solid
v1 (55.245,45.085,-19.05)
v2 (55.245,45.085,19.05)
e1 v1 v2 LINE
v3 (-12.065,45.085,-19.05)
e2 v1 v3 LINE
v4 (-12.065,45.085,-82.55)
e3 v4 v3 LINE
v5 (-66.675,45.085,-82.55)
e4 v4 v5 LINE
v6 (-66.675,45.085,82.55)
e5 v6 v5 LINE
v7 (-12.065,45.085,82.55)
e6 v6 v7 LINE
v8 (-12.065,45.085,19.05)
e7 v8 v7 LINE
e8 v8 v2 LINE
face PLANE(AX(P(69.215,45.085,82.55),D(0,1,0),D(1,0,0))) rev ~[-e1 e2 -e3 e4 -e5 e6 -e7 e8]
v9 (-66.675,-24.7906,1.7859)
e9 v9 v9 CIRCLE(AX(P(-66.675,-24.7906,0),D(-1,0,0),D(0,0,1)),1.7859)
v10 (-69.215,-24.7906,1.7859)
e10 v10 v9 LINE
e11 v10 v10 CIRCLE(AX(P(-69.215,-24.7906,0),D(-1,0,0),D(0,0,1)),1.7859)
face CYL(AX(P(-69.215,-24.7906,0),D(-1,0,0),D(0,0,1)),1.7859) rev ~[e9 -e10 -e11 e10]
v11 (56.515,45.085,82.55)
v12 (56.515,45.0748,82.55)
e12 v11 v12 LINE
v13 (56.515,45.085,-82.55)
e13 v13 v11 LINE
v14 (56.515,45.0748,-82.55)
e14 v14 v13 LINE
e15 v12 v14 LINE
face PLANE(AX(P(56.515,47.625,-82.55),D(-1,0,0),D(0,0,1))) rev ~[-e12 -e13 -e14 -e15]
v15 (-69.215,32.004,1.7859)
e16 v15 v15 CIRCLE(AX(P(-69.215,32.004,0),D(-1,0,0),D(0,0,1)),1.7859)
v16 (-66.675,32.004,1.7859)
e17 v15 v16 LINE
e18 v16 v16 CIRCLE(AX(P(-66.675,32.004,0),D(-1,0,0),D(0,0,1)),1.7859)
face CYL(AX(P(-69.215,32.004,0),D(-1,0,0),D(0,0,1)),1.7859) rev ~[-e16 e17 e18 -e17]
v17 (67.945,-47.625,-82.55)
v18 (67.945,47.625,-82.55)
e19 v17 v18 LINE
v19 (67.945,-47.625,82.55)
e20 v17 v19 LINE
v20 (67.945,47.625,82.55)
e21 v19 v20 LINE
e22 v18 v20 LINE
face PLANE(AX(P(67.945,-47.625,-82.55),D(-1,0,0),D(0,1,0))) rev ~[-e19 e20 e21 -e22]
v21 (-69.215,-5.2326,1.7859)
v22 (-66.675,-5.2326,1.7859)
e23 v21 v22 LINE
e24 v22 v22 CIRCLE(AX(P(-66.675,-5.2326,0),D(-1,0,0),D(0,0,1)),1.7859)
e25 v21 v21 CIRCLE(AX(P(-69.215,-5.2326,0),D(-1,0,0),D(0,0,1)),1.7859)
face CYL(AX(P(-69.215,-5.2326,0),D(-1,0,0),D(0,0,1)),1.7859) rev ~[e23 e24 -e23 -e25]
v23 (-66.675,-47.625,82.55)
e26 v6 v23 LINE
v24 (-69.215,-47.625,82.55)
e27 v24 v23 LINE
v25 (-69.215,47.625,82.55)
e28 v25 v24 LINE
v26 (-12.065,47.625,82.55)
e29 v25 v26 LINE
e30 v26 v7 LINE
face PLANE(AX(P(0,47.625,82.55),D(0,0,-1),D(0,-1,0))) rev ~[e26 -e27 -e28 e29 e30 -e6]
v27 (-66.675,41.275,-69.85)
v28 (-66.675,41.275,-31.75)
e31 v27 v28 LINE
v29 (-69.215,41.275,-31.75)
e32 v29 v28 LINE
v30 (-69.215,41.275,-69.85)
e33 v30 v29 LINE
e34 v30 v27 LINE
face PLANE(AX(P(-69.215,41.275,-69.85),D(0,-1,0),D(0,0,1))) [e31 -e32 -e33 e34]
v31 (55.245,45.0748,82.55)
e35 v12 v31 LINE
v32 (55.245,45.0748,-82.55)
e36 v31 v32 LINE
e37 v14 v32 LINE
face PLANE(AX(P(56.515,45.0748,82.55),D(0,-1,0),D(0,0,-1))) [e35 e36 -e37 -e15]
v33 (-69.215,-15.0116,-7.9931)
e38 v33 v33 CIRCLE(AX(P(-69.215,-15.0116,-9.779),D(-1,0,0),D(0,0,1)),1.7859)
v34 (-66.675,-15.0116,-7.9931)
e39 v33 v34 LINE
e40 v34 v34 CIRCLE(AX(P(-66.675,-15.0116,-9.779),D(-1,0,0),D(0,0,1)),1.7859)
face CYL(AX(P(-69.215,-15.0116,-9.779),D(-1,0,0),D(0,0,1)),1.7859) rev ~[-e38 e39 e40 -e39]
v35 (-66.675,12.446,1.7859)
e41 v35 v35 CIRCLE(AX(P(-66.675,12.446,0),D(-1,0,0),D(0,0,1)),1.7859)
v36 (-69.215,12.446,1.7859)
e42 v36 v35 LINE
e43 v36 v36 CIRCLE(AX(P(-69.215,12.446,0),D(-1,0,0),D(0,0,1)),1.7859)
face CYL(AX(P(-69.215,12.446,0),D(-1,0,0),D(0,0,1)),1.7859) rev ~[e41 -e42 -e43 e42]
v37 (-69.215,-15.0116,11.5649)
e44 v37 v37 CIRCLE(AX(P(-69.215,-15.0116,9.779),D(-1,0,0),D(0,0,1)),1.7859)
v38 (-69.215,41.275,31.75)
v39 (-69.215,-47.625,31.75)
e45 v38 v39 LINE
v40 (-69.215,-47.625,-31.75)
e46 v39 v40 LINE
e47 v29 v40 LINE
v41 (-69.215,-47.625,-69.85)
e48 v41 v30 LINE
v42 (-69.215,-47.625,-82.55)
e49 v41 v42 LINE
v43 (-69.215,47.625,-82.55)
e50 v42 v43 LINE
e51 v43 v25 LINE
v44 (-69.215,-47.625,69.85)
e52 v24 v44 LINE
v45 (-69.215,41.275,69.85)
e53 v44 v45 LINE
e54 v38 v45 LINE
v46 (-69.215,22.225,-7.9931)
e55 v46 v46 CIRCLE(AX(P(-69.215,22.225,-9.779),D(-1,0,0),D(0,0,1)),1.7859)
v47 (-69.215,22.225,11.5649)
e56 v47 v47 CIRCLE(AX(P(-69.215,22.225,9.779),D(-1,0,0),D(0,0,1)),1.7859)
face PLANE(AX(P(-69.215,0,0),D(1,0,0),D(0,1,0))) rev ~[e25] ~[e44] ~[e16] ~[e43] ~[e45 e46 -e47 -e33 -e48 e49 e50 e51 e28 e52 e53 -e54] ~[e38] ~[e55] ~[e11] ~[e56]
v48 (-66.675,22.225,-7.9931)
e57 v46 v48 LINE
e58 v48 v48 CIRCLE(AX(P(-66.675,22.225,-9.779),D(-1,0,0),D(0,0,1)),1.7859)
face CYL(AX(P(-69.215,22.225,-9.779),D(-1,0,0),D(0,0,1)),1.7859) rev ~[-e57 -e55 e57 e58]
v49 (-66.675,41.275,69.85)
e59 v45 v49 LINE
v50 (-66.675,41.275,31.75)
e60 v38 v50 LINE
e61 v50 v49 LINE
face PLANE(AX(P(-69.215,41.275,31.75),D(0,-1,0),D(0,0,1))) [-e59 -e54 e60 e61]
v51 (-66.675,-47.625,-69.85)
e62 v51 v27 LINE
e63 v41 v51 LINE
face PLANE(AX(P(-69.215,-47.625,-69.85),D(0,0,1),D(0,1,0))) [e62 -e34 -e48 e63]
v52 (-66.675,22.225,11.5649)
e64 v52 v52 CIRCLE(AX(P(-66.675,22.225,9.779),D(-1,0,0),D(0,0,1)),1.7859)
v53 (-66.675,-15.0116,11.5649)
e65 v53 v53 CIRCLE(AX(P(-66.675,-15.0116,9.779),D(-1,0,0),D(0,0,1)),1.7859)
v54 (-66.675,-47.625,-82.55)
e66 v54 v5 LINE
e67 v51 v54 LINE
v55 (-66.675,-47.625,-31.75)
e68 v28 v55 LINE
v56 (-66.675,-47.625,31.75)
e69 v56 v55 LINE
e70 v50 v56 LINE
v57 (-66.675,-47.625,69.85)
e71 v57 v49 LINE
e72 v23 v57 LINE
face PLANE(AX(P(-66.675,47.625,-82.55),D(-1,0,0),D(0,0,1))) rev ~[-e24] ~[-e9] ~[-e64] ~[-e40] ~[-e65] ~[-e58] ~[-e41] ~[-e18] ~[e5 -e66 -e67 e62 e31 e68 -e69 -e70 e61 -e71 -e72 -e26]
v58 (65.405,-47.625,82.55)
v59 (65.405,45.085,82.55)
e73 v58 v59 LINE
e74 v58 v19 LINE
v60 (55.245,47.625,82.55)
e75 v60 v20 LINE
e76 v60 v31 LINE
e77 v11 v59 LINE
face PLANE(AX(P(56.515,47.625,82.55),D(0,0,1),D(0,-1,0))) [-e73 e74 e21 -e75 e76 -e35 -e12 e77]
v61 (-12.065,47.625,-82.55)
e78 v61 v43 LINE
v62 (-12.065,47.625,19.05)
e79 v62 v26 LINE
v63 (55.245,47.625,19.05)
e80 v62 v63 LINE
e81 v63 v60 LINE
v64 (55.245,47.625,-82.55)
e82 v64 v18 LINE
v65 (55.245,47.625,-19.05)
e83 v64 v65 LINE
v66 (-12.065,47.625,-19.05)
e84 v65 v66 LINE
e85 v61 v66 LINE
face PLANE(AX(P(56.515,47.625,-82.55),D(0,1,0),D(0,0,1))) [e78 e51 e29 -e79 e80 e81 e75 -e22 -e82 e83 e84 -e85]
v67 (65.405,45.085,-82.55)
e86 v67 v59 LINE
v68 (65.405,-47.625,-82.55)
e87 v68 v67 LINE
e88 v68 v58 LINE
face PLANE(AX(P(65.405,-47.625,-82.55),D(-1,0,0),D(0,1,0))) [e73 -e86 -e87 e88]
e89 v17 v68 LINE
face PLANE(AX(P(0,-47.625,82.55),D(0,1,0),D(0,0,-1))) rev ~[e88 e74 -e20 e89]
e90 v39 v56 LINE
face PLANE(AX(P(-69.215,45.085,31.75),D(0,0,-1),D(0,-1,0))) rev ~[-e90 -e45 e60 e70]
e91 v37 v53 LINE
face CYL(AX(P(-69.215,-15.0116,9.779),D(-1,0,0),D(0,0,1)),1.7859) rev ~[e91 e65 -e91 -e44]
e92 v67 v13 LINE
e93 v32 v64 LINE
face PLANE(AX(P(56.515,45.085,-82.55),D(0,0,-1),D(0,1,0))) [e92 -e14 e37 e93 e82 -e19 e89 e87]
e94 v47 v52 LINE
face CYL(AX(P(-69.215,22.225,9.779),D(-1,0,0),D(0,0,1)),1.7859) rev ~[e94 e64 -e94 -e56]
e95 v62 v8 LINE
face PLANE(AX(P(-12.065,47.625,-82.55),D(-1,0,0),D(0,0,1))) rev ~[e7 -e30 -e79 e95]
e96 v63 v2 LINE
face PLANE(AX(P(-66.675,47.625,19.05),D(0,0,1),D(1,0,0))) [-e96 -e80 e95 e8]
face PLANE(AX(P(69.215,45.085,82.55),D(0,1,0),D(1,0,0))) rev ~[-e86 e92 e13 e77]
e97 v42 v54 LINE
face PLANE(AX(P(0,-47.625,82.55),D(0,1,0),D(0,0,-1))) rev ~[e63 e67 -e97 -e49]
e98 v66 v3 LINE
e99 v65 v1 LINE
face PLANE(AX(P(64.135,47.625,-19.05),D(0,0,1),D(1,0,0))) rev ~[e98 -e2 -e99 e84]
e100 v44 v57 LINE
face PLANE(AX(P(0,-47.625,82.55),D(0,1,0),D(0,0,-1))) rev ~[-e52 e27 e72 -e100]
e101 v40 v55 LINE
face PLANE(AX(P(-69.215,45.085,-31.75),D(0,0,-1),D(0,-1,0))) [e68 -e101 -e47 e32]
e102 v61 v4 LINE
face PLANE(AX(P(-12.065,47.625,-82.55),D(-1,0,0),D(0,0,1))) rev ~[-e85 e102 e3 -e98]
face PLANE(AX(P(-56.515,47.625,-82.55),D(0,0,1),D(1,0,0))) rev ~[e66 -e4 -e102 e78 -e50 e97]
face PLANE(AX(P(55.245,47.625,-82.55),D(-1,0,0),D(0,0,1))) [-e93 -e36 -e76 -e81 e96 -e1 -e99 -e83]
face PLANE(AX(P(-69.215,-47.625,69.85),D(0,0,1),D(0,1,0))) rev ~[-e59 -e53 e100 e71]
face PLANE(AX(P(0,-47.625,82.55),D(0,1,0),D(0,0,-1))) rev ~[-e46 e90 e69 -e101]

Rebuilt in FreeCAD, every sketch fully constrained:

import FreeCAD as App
import Part
import Sketcher

V = App.Vector
Q = App.Units.Quantity

doc = App.newDocument("Part")
body = doc.addObject("PartDesign::Body", "Body")

# Sketch on YZ plane
sketch1 = body.newObject("Sketcher::SketchObject", "Sketch")
sketch1.AttachmentSupport = (doc.getObject("YZ_Plane"), [""])
sketch1.MapMode = "FlatFace"
sketch1.addGeometry(Part.LineSegment(V(47.625, 82.55, 0), V(-47.625, 82.55, 0)), False)
sketch1.addGeometry(Part.LineSegment(V(-47.625, 82.55, 0), V(-47.625, -82.55, 0)), False)
sketch1.addGeometry(Part.LineSegment(V(-47.625, -82.55, 0), V(47.625, -82.55, 0)), False)
sketch1.addGeometry(Part.LineSegment(V(47.625, -82.55, 0), V(47.625, 82.55, 0)), False)
sketch1.addConstraint(Sketcher.Constraint("Coincident", 0, 2, 1, 1))
sketch1.addConstraint(Sketcher.Constraint("Coincident", 1, 2, 2, 1))
sketch1.addConstraint(Sketcher.Constraint("Coincident", 2, 2, 3, 1))
sketch1.addConstraint(Sketcher.Constraint("Coincident", 3, 2, 0, 1))
sketch1.addConstraint(Sketcher.Constraint("Horizontal", 0))
sketch1.addConstraint(Sketcher.Constraint("Vertical", 1))
sketch1.addConstraint(Sketcher.Constraint("Horizontal", 2))
sketch1.addConstraint(Sketcher.Constraint("Vertical", 3))
sketch1.addConstraint(Sketcher.Constraint("Symmetric", 0, 2, 2, 2, -1, 1))
sketch1.addConstraint(Sketcher.Constraint("DistanceY", 1, 2, 1, 1, Q("6.5 in")))
sketch1.addConstraint(Sketcher.Constraint("DistanceX", 0, 2, 0, 1, Q("3.75 in")))
pad1 = body.newObject("PartDesign::Pad", "Pad")
pad1.Profile = sketch1
pad1.Length = Q("5.45 in")
pad1.Midplane = True

# Sketch on XZ plane
sketch2 = body.newObject("Sketcher::SketchObject", "Sketch001")
sketch2.AttachmentSupport = (doc.getObject("XZ_Plane"), [""])
sketch2.MapMode = "FlatFace"
sketch2.AttachmentOffset = App.Placement(V(0, 0, -1.875 * 25.4), App.Rotation())
sketch2.addGeometry(Part.LineSegment(V(-66.675, 19.05, 0), V(-66.675, 82.55, 0)), False)
sketch2.addGeometry(Part.LineSegment(V(-66.675, 82.55, 0), V(64.135, 82.55, 0)), False)
sketch2.addGeometry(Part.LineSegment(V(64.135, 82.55, 0), V(64.135, 19.05, 0)), False)
sketch2.addGeometry(Part.LineSegment(V(64.135, 19.05, 0), V(-66.675, 19.05, 0)), False)
sketch2.addGeometry(Part.LineSegment(V(-66.675, -82.55, 0), V(-66.675, -19.05, 0)), False)
sketch2.addGeometry(Part.LineSegment(V(-66.675, -19.05, 0), V(64.135, -19.05, 0)), False)
sketch2.addGeometry(Part.LineSegment(V(64.135, -19.05, 0), V(64.135, -82.55, 0)), False)
sketch2.addGeometry(Part.LineSegment(V(64.135, -82.55, 0), V(-66.675, -82.55, 0)), False)
sketch2.addConstraint(Sketcher.Constraint("Coincident", 0, 2, 1, 1))
sketch2.addConstraint(Sketcher.Constraint("Coincident", 1, 2, 2, 1))
sketch2.addConstraint(Sketcher.Constraint("Coincident", 2, 2, 3, 1))
sketch2.addConstraint(Sketcher.Constraint("Coincident", 3, 2, 0, 1))
sketch2.addConstraint(Sketcher.Constraint("Coincident", 4, 2, 5, 1))
sketch2.addConstraint(Sketcher.Constraint("Coincident", 5, 2, 6, 1))
sketch2.addConstraint(Sketcher.Constraint("Coincident", 6, 2, 7, 1))
sketch2.addConstraint(Sketcher.Constraint("Coincident", 7, 2, 4, 1))
sketch2.addConstraint(Sketcher.Constraint("Vertical", 0))
sketch2.addConstraint(Sketcher.Constraint("Horizontal", 1))
sketch2.addConstraint(Sketcher.Constraint("Vertical", 2))
sketch2.addConstraint(Sketcher.Constraint("Horizontal", 3))
sketch2.addConstraint(Sketcher.Constraint("Vertical", 4))
sketch2.addConstraint(Sketcher.Constraint("Horizontal", 5))
sketch2.addConstraint(Sketcher.Constraint("Vertical", 6))
sketch2.addConstraint(Sketcher.Constraint("Horizontal", 7))
sketch2.addConstraint(Sketcher.Constraint("Symmetric", 3, 2, 4, 2, -1))
sketch2.addConstraint(Sketcher.Constraint("Symmetric", 1, 2, 6, 2, -1))
sketch2.addConstraint(Sketcher.Constraint("DistanceY", 0, 1, 0, 2, Q("2.5 in")))
sketch2.addConstraint(Sketcher.Constraint("DistanceY", 4, 2, 3, 2, Q("1.5 in")))
sketch2.addConstraint(Sketcher.Constraint("DistanceX", 1, 1, 1, 2, Q("5.15 in")))
sketch2.addConstraint(Sketcher.Constraint("DistanceX", 0, 2, -1, 1, Q("2.625 in")))
pocket1 = body.newObject("PartDesign::Pocket", "Pocket")
pocket1.Profile = sketch2
pocket1.Length = Q("510.35 in")
pocket1.Reversed = True

# Sketch on XY plane
sketch3 = body.newObject("Sketcher::SketchObject", "Sketch002")
sketch3.AttachmentSupport = (doc.getObject("XY_Plane"), [""])
sketch3.MapMode = "FlatFace"
sketch3.AttachmentOffset = App.Placement(V(0, 0, 0.75 * 25.4), App.Rotation())
sketch3.addGeometry(Part.LineSegment(V(-66.675, -47.625, 0), V(66.675, -47.625, 0)), False)
sketch3.addGeometry(Part.LineSegment(V(66.675, -47.625, 0), V(66.675, 45.085, 0)), False)
sketch3.addGeometry(Part.LineSegment(V(66.675, 45.085, 0), V(-66.675, 45.085, 0)), False)
sketch3.addGeometry(Part.LineSegment(V(-66.675, 45.085, 0), V(-66.675, -47.625, 0)), False)
sketch3.addConstraint(Sketcher.Constraint("Coincident", 0, 2, 1, 1))
sketch3.addConstraint(Sketcher.Constraint("Coincident", 1, 2, 2, 1))
sketch3.addConstraint(Sketcher.Constraint("Coincident", 2, 2, 3, 1))
sketch3.addConstraint(Sketcher.Constraint("Coincident", 3, 2, 0, 1))
sketch3.addConstraint(Sketcher.Constraint("Horizontal", 0))
sketch3.addConstraint(Sketcher.Constraint("Vertical", 1))
sketch3.addConstraint(Sketcher.Constraint("Horizontal", 2))
sketch3.addConstraint(Sketcher.Constraint("Vertical", 3))
sketch3.addConstraint(Sketcher.Constraint("DistanceX", 0, 1, 0, 2, Q("5.25 in")))
sketch3.addConstraint(Sketcher.Constraint("DistanceY", 1, 1, 1, 2, Q("3.65 in")))
sketch3.addConstraint(Sketcher.Constraint("DistanceX", -1, 1, 0, 2, Q("2.625 in")))
sketch3.addConstraint(Sketcher.Constraint("DistanceY", 0, 2, -1, 1, Q("1.875 in")))
pocket2 = body.newObject("PartDesign::Pocket", "Pocket001")
pocket2.Profile = sketch3
pocket2.Length = Q("8 in")
pocket2.Midplane = True

# Sketch on XZ plane
sketch4 = body.newObject("Sketcher::SketchObject", "Sketch003")
sketch4.AttachmentSupport = (doc.getObject("XZ_Plane"), [""])
sketch4.MapMode = "FlatFace"
sketch4.AttachmentOffset = App.Placement(V(0, 0, -1.875 * 25.4), App.Rotation())
sketch4.addGeometry(Part.LineSegment(V(66.675, 19.05, 0), V(64.135, 19.05, 0)), False)
sketch4.addGeometry(Part.LineSegment(V(64.135, 19.05, 0), V(64.135, 82.55, 0)), False)
sketch4.addGeometry(Part.LineSegment(V(64.135, 82.55, 0), V(66.675, 82.55, 0)), False)
sketch4.addGeometry(Part.LineSegment(V(66.675, 82.55, 0), V(66.675, 19.05, 0)), False)
sketch4.addGeometry(Part.LineSegment(V(64.135, -19.05, 0), V(66.675, -19.05, 0)), False)
sketch4.addGeometry(Part.LineSegment(V(66.675, -19.05, 0), V(66.675, -82.55, 0)), False)
sketch4.addGeometry(Part.LineSegment(V(66.675, -82.55, 0), V(64.135, -82.55, 0)), False)
sketch4.addGeometry(Part.LineSegment(V(64.135, -82.55, 0), V(64.135, -19.05, 0)), False)
sketch4.addConstraint(Sketcher.Constraint("Coincident", 0, 2, 1, 1))
sketch4.addConstraint(Sketcher.Constraint("Coincident", 1, 2, 2, 1))
sketch4.addConstraint(Sketcher.Constraint("Coincident", 2, 2, 3, 1))
sketch4.addConstraint(Sketcher.Constraint("Coincident", 3, 2, 0, 1))
sketch4.addConstraint(Sketcher.Constraint("Coincident", 4, 2, 5, 1))
sketch4.addConstraint(Sketcher.Constraint("Coincident", 5, 2, 6, 1))
sketch4.addConstraint(Sketcher.Constraint("Coincident", 6, 2, 7, 1))
sketch4.addConstraint(Sketcher.Constraint("Coincident", 7, 2, 4, 1))
sketch4.addConstraint(Sketcher.Constraint("Horizontal", 0))
sketch4.addConstraint(Sketcher.Constraint("Vertical", 1))
sketch4.addConstraint(Sketcher.Constraint("Horizontal", 2))
sketch4.addConstraint(Sketcher.Constraint("Vertical", 3))
sketch4.addConstraint(Sketcher.Constraint("Horizontal", 4))
sketch4.addConstraint(Sketcher.Constraint("Vertical", 5))
sketch4.addConstraint(Sketcher.Constraint("Horizontal", 6))
sketch4.addConstraint(Sketcher.Constraint("Vertical", 7))
sketch4.addConstraint(Sketcher.Constraint("Symmetric", 3, 2, 4, 2, -1))
sketch4.addConstraint(Sketcher.Constraint("Symmetric", 1, 2, 6, 2, -1))
sketch4.addConstraint(Sketcher.Constraint("DistanceX", 0, 2, 0, 1, Q("0.1 in")))
sketch4.addConstraint(Sketcher.Constraint("DistanceY", 1, 1, 1, 2, Q("2.5 in")))
sketch4.addConstraint(Sketcher.Constraint("DistanceY", 4, 2, 2, 2, Q("4 in")))
sketch4.addConstraint(Sketcher.Constraint("DistanceX", -1, 1, 0, 2, Q("2.525 in")))
pocket3 = body.newObject("PartDesign::Pocket", "Pocket002")
pocket3.Profile = sketch4
pocket3.Length = Q("1 in")
pocket3.Reversed = True

# Sketch on YZ plane
sketch5 = body.newObject("Sketcher::SketchObject", "Sketch004")
sketch5.AttachmentSupport = (doc.getObject("YZ_Plane"), [""])
sketch5.MapMode = "FlatFace"
sketch5.AttachmentOffset = App.Placement(V(0, 0, -2.725 * 25.4), App.Rotation())
sketch5.addGeometry(Part.LineSegment(V(45.085, 69.85, 0), V(45.085, 31.75, 0)), False)
sketch5.addGeometry(Part.LineSegment(V(45.085, 31.75, 0), V(-47.625, 31.75, 0)), False)
sketch5.addGeometry(Part.LineSegment(V(-47.625, 31.75, 0), V(-47.625, 69.85, 0)), False)
sketch5.addGeometry(Part.LineSegment(V(-47.625, 69.85, 0), V(45.085, 69.85, 0)), False)
sketch5.addGeometry(Part.LineSegment(V(-47.625, -31.75, 0), V(45.085, -31.75, 0)), False)
sketch5.addGeometry(Part.LineSegment(V(45.085, -31.75, 0), V(45.085, -69.85, 0)), False)
sketch5.addGeometry(Part.LineSegment(V(45.085, -69.85, 0), V(-47.625, -69.85, 0)), False)
sketch5.addGeometry(Part.LineSegment(V(-47.625, -69.85, 0), V(-47.625, -31.75, 0)), False)
sketch5.addConstraint(Sketcher.Constraint("Coincident", 0, 2, 1, 1))
sketch5.addConstraint(Sketcher.Constraint("Coincident", 1, 2, 2, 1))
sketch5.addConstraint(Sketcher.Constraint("Coincident", 2, 2, 3, 1))
sketch5.addConstraint(Sketcher.Constraint("Coincident", 3, 2, 0, 1))
sketch5.addConstraint(Sketcher.Constraint("Coincident", 4, 2, 5, 1))
sketch5.addConstraint(Sketcher.Constraint("Coincident", 5, 2, 6, 1))
sketch5.addConstraint(Sketcher.Constraint("Coincident", 6, 2, 7, 1))
sketch5.addConstraint(Sketcher.Constraint("Coincident", 7, 2, 4, 1))
sketch5.addConstraint(Sketcher.Constraint("Vertical", 0))
sketch5.addConstraint(Sketcher.Constraint("Horizontal", 1))
sketch5.addConstraint(Sketcher.Constraint("Vertical", 2))
sketch5.addConstraint(Sketcher.Constraint("Horizontal", 3))
sketch5.addConstraint(Sketcher.Constraint("Horizontal", 4))
sketch5.addConstraint(Sketcher.Constraint("Vertical", 5))
sketch5.addConstraint(Sketcher.Constraint("Horizontal", 6))
sketch5.addConstraint(Sketcher.Constraint("Vertical", 7))
sketch5.addConstraint(Sketcher.Constraint("Symmetric", 0, 2, 4, 2, -1))
sketch5.addConstraint(Sketcher.Constraint("Symmetric", 2, 2, 6, 2, -1))
sketch5.addConstraint(Sketcher.Constraint("DistanceY", 0, 2, 0, 1, Q("1.5 in")))
sketch5.addConstraint(Sketcher.Constraint("DistanceY", 4, 2, 3, 2, Q("4 in")))
sketch5.addConstraint(Sketcher.Constraint("DistanceX", 1, 2, 1, 1, Q("3.65 in")))
sketch5.addConstraint(Sketcher.Constraint("DistanceX", -1, 1, 0, 2, Q("1.775 in")))
pocket4 = body.newObject("PartDesign::Pocket", "Pocket003")
pocket4.Profile = sketch5
pocket4.Length = Q("1 in")
pocket4.Reversed = True

# Sketch on XZ plane
sketch6 = body.newObject("Sketcher::SketchObject", "Sketch005")
sketch6.AttachmentSupport = (doc.getObject("XZ_Plane"), [""])
sketch6.MapMode = "FlatFace"
sketch6.AttachmentOffset = App.Placement(V(0, 0, -1.875 * 25.4), App.Rotation())
sketch6.addGeometry(Part.LineSegment(V(-66.675, -82.55, 0), V(-66.675, -76.2, 0)), False)
sketch6.addGeometry(Part.LineSegment(V(-66.675, -76.2, 0), V(66.675, -76.2, 0)), False)
sketch6.addGeometry(Part.LineSegment(V(66.675, -76.2, 0), V(66.675, -82.55, 0)), False)
sketch6.addGeometry(Part.LineSegment(V(66.675, -82.55, 0), V(-66.675, -82.55, 0)), False)
sketch6.addGeometry(Part.LineSegment(V(-66.675, 76.2, 0), V(-66.675, 82.55, 0)), False)
sketch6.addGeometry(Part.LineSegment(V(-66.675, 82.55, 0), V(66.675, 82.55, 0)), False)
sketch6.addGeometry(Part.LineSegment(V(66.675, 82.55, 0), V(66.675, 76.2, 0)), False)
sketch6.addGeometry(Part.LineSegment(V(66.675, 76.2, 0), V(-66.675, 76.2, 0)), False)
sketch6.addConstraint(Sketcher.Constraint("Coincident", 0, 2, 1, 1))
sketch6.addConstraint(Sketcher.Constraint("Coincident", 1, 2, 2, 1))
sketch6.addConstraint(Sketcher.Constraint("Coincident", 2, 2, 3, 1))
sketch6.addConstraint(Sketcher.Constraint("Coincident", 3, 2, 0, 1))
sketch6.addConstraint(Sketcher.Constraint("Coincident", 4, 2, 5, 1))
sketch6.addConstraint(Sketcher.Constraint("Coincident", 5, 2, 6, 1))
sketch6.addConstraint(Sketcher.Constraint("Coincident", 6, 2, 7, 1))
sketch6.addConstraint(Sketcher.Constraint("Coincident", 7, 2, 4, 1))
sketch6.addConstraint(Sketcher.Constraint("Vertical", 0))
sketch6.addConstraint(Sketcher.Constraint("Horizontal", 1))
sketch6.addConstraint(Sketcher.Constraint("Vertical", 2))
sketch6.addConstraint(Sketcher.Constraint("Horizontal", 3))
sketch6.addConstraint(Sketcher.Constraint("Vertical", 4))
sketch6.addConstraint(Sketcher.Constraint("Horizontal", 5))
sketch6.addConstraint(Sketcher.Constraint("Vertical", 6))
sketch6.addConstraint(Sketcher.Constraint("Horizontal", 7))
sketch6.addConstraint(Sketcher.Constraint("Symmetric", 2, 2, 4, 2, -1, 1))
sketch6.addConstraint(Sketcher.Constraint("Symmetric", 0, 2, 6, 2, -1, 1))
sketch6.addConstraint(Sketcher.Constraint("Vertical", 3, 2, 4, 2))
sketch6.addConstraint(Sketcher.Constraint("DistanceY", 0, 1, 0, 2, Q("0.25 in")))
sketch6.addConstraint(Sketcher.Constraint("DistanceY", 0, 2, -1, 1, Q("3 in")))
sketch6.addConstraint(Sketcher.Constraint("DistanceX", 1, 1, 1, 2, Q("5.25 in")))
pad2 = body.newObject("PartDesign::Pad", "Pad001")
pad2.Profile = sketch6
pad2.Length = Q("0.1 in")

# Sketch on YZ plane
sketch7 = body.newObject("Sketcher::SketchObject", "Sketch006")
sketch7.AttachmentSupport = (doc.getObject("YZ_Plane"), [""])
sketch7.MapMode = "FlatFace"
sketch7.AttachmentOffset = App.Placement(V(0, 0, -2.725 * 25.4), App.Rotation())
sketch7.addGeometry(Part.LineSegment(V(45.085, -31.75, 0), V(45.085, -69.85, 0)), False)
sketch7.addGeometry(Part.LineSegment(V(45.085, -69.85, 0), V(41.275, -69.85, 0)), False)
sketch7.addGeometry(Part.LineSegment(V(41.275, -69.85, 0), V(41.275, -31.75, 0)), False)
sketch7.addGeometry(Part.LineSegment(V(41.275, -31.75, 0), V(45.085, -31.75, 0)), False)
sketch7.addGeometry(Part.LineSegment(V(45.085, 31.75, 0), V(41.275, 31.75, 0)), False)
sketch7.addGeometry(Part.LineSegment(V(41.275, 31.75, 0), V(41.275, 69.85, 0)), False)
sketch7.addGeometry(Part.LineSegment(V(41.275, 69.85, 0), V(45.085, 69.85, 0)), False)
sketch7.addGeometry(Part.LineSegment(V(45.085, 69.85, 0), V(45.085, 31.75, 0)), False)
sketch7.addConstraint(Sketcher.Constraint("Coincident", 0, 2, 1, 1))
sketch7.addConstraint(Sketcher.Constraint("Coincident", 1, 2, 2, 1))
sketch7.addConstraint(Sketcher.Constraint("Coincident", 2, 2, 3, 1))
sketch7.addConstraint(Sketcher.Constraint("Coincident", 3, 2, 0, 1))
sketch7.addConstraint(Sketcher.Constraint("Coincident", 4, 2, 5, 1))
sketch7.addConstraint(Sketcher.Constraint("Coincident", 5, 2, 6, 1))
sketch7.addConstraint(Sketcher.Constraint("Coincident", 6, 2, 7, 1))
sketch7.addConstraint(Sketcher.Constraint("Coincident", 7, 2, 4, 1))
sketch7.addConstraint(Sketcher.Constraint("Vertical", 0))
sketch7.addConstraint(Sketcher.Constraint("Horizontal", 1))
sketch7.addConstraint(Sketcher.Constraint("Vertical", 2))
sketch7.addConstraint(Sketcher.Constraint("Horizontal", 3))
sketch7.addConstraint(Sketcher.Constraint("Horizontal", 4))
sketch7.addConstraint(Sketcher.Constraint("Vertical", 5))
sketch7.addConstraint(Sketcher.Constraint("Horizontal", 6))
sketch7.addConstraint(Sketcher.Constraint("Vertical", 7))
sketch7.addConstraint(Sketcher.Constraint("Symmetric", 2, 2, 4, 2, -1))
sketch7.addConstraint(Sketcher.Constraint("Symmetric", 0, 2, 6, 2, -1))
sketch7.addConstraint(Sketcher.Constraint("DistanceY", 0, 2, 0, 1, Q("1.5 in")))
sketch7.addConstraint(Sketcher.Constraint("DistanceY", 1, 2, 4, 2, Q("4 in")))
sketch7.addConstraint(Sketcher.Constraint("DistanceX", 1, 2, 1, 1, Q("0.15 in")))
sketch7.addConstraint(Sketcher.Constraint("DistanceX", -1, 1, 0, 2, Q("1.775 in")))
pad3 = body.newObject("PartDesign::Pad", "Pad002")
pad3.Profile = sketch7
pad3.Length = Q("0.1 in")

# Sketch on XZ plane
sketch8 = body.newObject("Sketcher::SketchObject", "Sketch007")
sketch8.AttachmentSupport = (doc.getObject("XZ_Plane"), [""])
sketch8.MapMode = "FlatFace"
sketch8.AttachmentOffset = App.Placement(V(0, 0, -1.875 * 25.4), App.Rotation())
sketch8.addGeometry(Part.LineSegment(V(-56.515, -76.2, 0), V(-69.215, -76.2, 0)), False)
sketch8.addGeometry(Part.LineSegment(V(-69.215, -76.2, 0), V(-69.215, -19.05, 0)), False)
sketch8.addGeometry(Part.LineSegment(V(-69.215, -19.05, 0), V(-56.515, -19.05, 0)), False)
sketch8.addGeometry(Part.LineSegment(V(-56.515, -19.05, 0), V(-56.515, -76.2, 0)), False)
sketch8.addGeometry(Part.LineSegment(V(56.7264, -76.2, 0), V(56.7264, -19.05, 0)), False)
sketch8.addGeometry(Part.LineSegment(V(56.7264, -19.05, 0), V(69.4264, -19.05, 0)), False)
sketch8.addGeometry(Part.LineSegment(V(69.4264, -19.05, 0), V(69.4264, -76.2, 0)), False)
sketch8.addGeometry(Part.LineSegment(V(69.4264, -76.2, 0), V(56.7264, -76.2, 0)), False)
sketch8.addGeometry(Part.LineSegment(V(69.4264, 19.05, 0), V(56.7264, 19.05, 0)), False)
sketch8.addGeometry(Part.LineSegment(V(56.7264, 19.05, 0), V(56.7264, 76.2, 0)), False)
sketch8.addGeometry(Part.LineSegment(V(56.7264, 76.2, 0), V(69.4264, 76.2, 0)), False)
sketch8.addGeometry(Part.LineSegment(V(69.4264, 76.2, 0), V(69.4264, 19.05, 0)), False)
sketch8.addGeometry(Part.LineSegment(V(-56.515, 19.05, 0), V(-69.215, 19.05, 0)), False)
sketch8.addGeometry(Part.LineSegment(V(-69.215, 19.05, 0), V(-69.215, 76.2, 0)), False)
sketch8.addGeometry(Part.LineSegment(V(-69.215, 76.2, 0), V(-56.515, 76.2, 0)), False)
sketch8.addGeometry(Part.LineSegment(V(-56.515, 76.2, 0), V(-56.515, 19.05, 0)), False)
sketch8.addConstraint(Sketcher.Constraint("Coincident", 0, 2, 1, 1))
sketch8.addConstraint(Sketcher.Constraint("Coincident", 1, 2, 2, 1))
sketch8.addConstraint(Sketcher.Constraint("Coincident", 2, 2, 3, 1))
sketch8.addConstraint(Sketcher.Constraint("Coincident", 3, 2, 0, 1))
sketch8.addConstraint(Sketcher.Constraint("Coincident", 4, 2, 5, 1))
sketch8.addConstraint(Sketcher.Constraint("Coincident", 5, 2, 6, 1))
sketch8.addConstraint(Sketcher.Constraint("Coincident", 6, 2, 7, 1))
sketch8.addConstraint(Sketcher.Constraint("Coincident", 7, 2, 4, 1))
sketch8.addConstraint(Sketcher.Constraint("Coincident", 8, 2, 9, 1))
sketch8.addConstraint(Sketcher.Constraint("Coincident", 9, 2, 10, 1))
sketch8.addConstraint(Sketcher.Constraint("Coincident", 10, 2, 11, 1))
sketch8.addConstraint(Sketcher.Constraint("Coincident", 11, 2, 8, 1))
sketch8.addConstraint(Sketcher.Constraint("Coincident", 12, 2, 13, 1))
sketch8.addConstraint(Sketcher.Constraint("Coincident", 13, 2, 14, 1))
sketch8.addConstraint(Sketcher.Constraint("Coincident", 14, 2, 15, 1))
sketch8.addConstraint(Sketcher.Constraint("Coincident", 15, 2, 12, 1))
sketch8.addConstraint(Sketcher.Constraint("Horizontal", 0))
sketch8.addConstraint(Sketcher.Constraint("Vertical", 1))
sketch8.addConstraint(Sketcher.Constraint("Horizontal", 2))
sketch8.addConstraint(Sketcher.Constraint("Vertical", 3))
sketch8.addConstraint(Sketcher.Constraint("Vertical", 4))
sketch8.addConstraint(Sketcher.Constraint("Horizontal", 5))
sketch8.addConstraint(Sketcher.Constraint("Vertical", 6))
sketch8.addConstraint(Sketcher.Constraint("Horizontal", 7))
sketch8.addConstraint(Sketcher.Constraint("Horizontal", 8))
sketch8.addConstraint(Sketcher.Constraint("Vertical", 9))
sketch8.addConstraint(Sketcher.Constraint("Horizontal", 10))
sketch8.addConstraint(Sketcher.Constraint("Vertical", 11))
sketch8.addConstraint(Sketcher.Constraint("Horizontal", 12))
sketch8.addConstraint(Sketcher.Constraint("Vertical", 13))
sketch8.addConstraint(Sketcher.Constraint("Horizontal", 14))
sketch8.addConstraint(Sketcher.Constraint("Vertical", 15))
sketch8.addConstraint(Sketcher.Constraint("Symmetric", 4, 2, 8, 2, -1))
sketch8.addConstraint(Sketcher.Constraint("Symmetric", 6, 2, 10, 2, -1))
sketch8.addConstraint(Sketcher.Constraint("Symmetric", 1, 2, 12, 2, -1))
sketch8.addConstraint(Sketcher.Constraint("Symmetric", 3, 2, 14, 2, -1))
sketch8.addConstraint(Sketcher.Constraint("Horizontal", 2, 2, 4, 2))
sketch8.addConstraint(Sketcher.Constraint("Horizontal", 3, 2, 6, 2))
sketch8.addConstraint(Sketcher.Constraint("Equal", 2, 5))
sketch8.addConstraint(Sketcher.Constraint("DistanceX", 0, 2, 0, 1, Q("0.5 in")))
sketch8.addConstraint(Sketcher.Constraint("DistanceY", 0, 2, -1, 1, Q("3 in")))
sketch8.addConstraint(Sketcher.Constraint("DistanceY", 1, 1, 1, 2, Q("2.25 in")))
sketch8.addConstraint(Sketcher.Constraint("DistanceX", 0, 2, -1, 1, Q("2.725 in")))
sketch8.addConstraint(Sketcher.Constraint("DistanceX", -1, 1, 4, 2, 56.7264))
pad4 = body.newObject("PartDesign::Pad", "Pad003")
pad4.Profile = sketch8
pad4.Length = Q("0.1 in")

# Sketch on XZ plane
sketch9 = body.newObject("Sketcher::SketchObject", "Sketch008")
sketch9.AttachmentSupport = (doc.getObject("XZ_Plane"), [""])
sketch9.MapMode = "FlatFace"
sketch9.AttachmentOffset = App.Placement(V(0, 0, -1.875 * 25.4), App.Rotation())
sketch9.addGeometry(Part.LineSegment(V(69.215, 82.55, 0), V(69.215, -76.2, 0)), False)
sketch9.addGeometry(Part.LineSegment(V(69.215, -76.2, 0), V(56.515, -76.2, 0)), False)
sketch9.addGeometry(Part.LineSegment(V(56.515, -76.2, 0), V(56.515, 82.55, 0)), False)
sketch9.addGeometry(Part.LineSegment(V(56.515, 82.55, 0), V(69.215, 82.55, 0)), False)
sketch9.addConstraint(Sketcher.Constraint("Coincident", 0, 2, 1, 1))
sketch9.addConstraint(Sketcher.Constraint("Coincident", 1, 2, 2, 1))
sketch9.addConstraint(Sketcher.Constraint("Coincident", 2, 2, 3, 1))
sketch9.addConstraint(Sketcher.Constraint("Coincident", 3, 2, 0, 1))
sketch9.addConstraint(Sketcher.Constraint("Vertical", 0))
sketch9.addConstraint(Sketcher.Constraint("Horizontal", 1))
sketch9.addConstraint(Sketcher.Constraint("Vertical", 2))
sketch9.addConstraint(Sketcher.Constraint("Horizontal", 3))
sketch9.addConstraint(Sketcher.Constraint("DistanceX", 1, 2, 1, 1, Q("0.5 in")))
sketch9.addConstraint(Sketcher.Constraint("DistanceY", 0, 2, -1, 1, Q("3 in")))
sketch9.addConstraint(Sketcher.Constraint("DistanceY", 0, 2, 0, 1, Q("6.25 in")))
sketch9.addConstraint(Sketcher.Constraint("DistanceX", -1, 1, 0, 2, Q("2.725 in")))
pad5 = body.newObject("PartDesign::Pad", "Pad004")
pad5.Profile = sketch9
pad5.Length = Q("0.1 in")

# Sketch on XZ plane
sketch10 = body.newObject("Sketcher::SketchObject", "Sketch009")
sketch10.AttachmentSupport = (doc.getObject("XZ_Plane"), [""])
sketch10.MapMode = "FlatFace"
sketch10.AttachmentOffset = App.Placement(V(0, 0, -1.875 * 25.4), App.Rotation())
sketch10.addGeometry(Part.LineSegment(V(-56.515, -82.55, 0), V(-56.515, -76.2, 0)), False)
sketch10.addGeometry(Part.LineSegment(V(-56.515, -76.2, 0), V(56.515, -76.2, 0)), False)
sketch10.addGeometry(Part.LineSegment(V(56.515, -76.2, 0), V(56.515, -82.55, 0)), False)
sketch10.addGeometry(Part.LineSegment(V(56.515, -82.55, 0), V(-56.515, -82.55, 0)), False)
sketch10.addGeometry(Part.LineSegment(V(56.515, 82.55, 0), V(56.515, 76.2, 0)), False)
sketch10.addGeometry(Part.LineSegment(V(56.515, 76.2, 0), V(-56.515, 76.2, 0)), False)
sketch10.addGeometry(Part.LineSegment(V(-56.515, 76.2, 0), V(-56.515, 82.55, 0)), False)
sketch10.addGeometry(Part.LineSegment(V(-56.515, 82.55, 0), V(56.515, 82.55, 0)), False)
sketch10.addConstraint(Sketcher.Constraint("Coincident", 0, 2, 1, 1))
sketch10.addConstraint(Sketcher.Constraint("Coincident", 1, 2, 2, 1))
sketch10.addConstraint(Sketcher.Constraint("Coincident", 2, 2, 3, 1))
sketch10.addConstraint(Sketcher.Constraint("Coincident", 3, 2, 0, 1))
sketch10.addConstraint(Sketcher.Constraint("Coincident", 4, 2, 5, 1))
sketch10.addConstraint(Sketcher.Constraint("Coincident", 5, 2, 6, 1))
sketch10.addConstraint(Sketcher.Constraint("Coincident", 6, 2, 7, 1))
sketch10.addConstraint(Sketcher.Constraint("Coincident", 7, 2, 4, 1))
sketch10.addConstraint(Sketcher.Constraint("Vertical", 0))
sketch10.addConstraint(Sketcher.Constraint("Horizontal", 1))
sketch10.addConstraint(Sketcher.Constraint("Vertical", 2))
sketch10.addConstraint(Sketcher.Constraint("Horizontal", 3))
sketch10.addConstraint(Sketcher.Constraint("Vertical", 4))
sketch10.addConstraint(Sketcher.Constraint("Horizontal", 5))
sketch10.addConstraint(Sketcher.Constraint("Vertical", 6))
sketch10.addConstraint(Sketcher.Constraint("Horizontal", 7))
sketch10.addConstraint(Sketcher.Constraint("Symmetric", 0, 2, 4, 2, -1, 1))
sketch10.addConstraint(Sketcher.Constraint("Symmetric", 2, 2, 6, 2, -1, 1))
sketch10.addConstraint(Sketcher.Constraint("Vertical", 2, 2, 4, 2))
sketch10.addConstraint(Sketcher.Constraint("DistanceY", 0, 2, -1, 1, Q("3 in")))
sketch10.addConstraint(Sketcher.Constraint("DistanceX", 1, 1, 1, 2, Q("4.45 in")))
sketch10.addConstraint(Sketcher.Constraint("DistanceY", 0, 1, 0, 2, Q("0.25 in")))
pocket5 = body.newObject("PartDesign::Pocket", "Pocket004")
pocket5.Profile = sketch10
pocket5.Length = Q("0.1 in")
pocket5.Reversed = True

# Sketch on YZ plane
sketch11 = body.newObject("Sketcher::SketchObject", "Sketch010")
sketch11.AttachmentSupport = (doc.getObject("YZ_Plane"), [""])
sketch11.MapMode = "FlatFace"
sketch11.AttachmentOffset = App.Placement(V(0, 0, -2.725 * 25.4), App.Rotation())
sketch11.addGeometry(Part.Circle(V(-5.2326, 0, 0), V(0, 0, 1), 1.7859), False)
sketch11.addGeometry(Part.Circle(V(-15.0116, 9.779, 0), V(0, 0, 1), 1.7859), False)
sketch11.addGeometry(Part.Circle(V(-15.0116, -9.779, 0), V(0, 0, 1), 1.7859), False)
sketch11.addGeometry(Part.Circle(V(-24.7906, 0, 0), V(0, 0, 1), 1.7859), False)
sketch11.addGeometry(Part.Circle(V(12.446, 0, 0), V(0, 0, 1), 1.7859), False)
sketch11.addGeometry(Part.Circle(V(22.225, 9.779, 0), V(0, 0, 1), 1.7859), False)
sketch11.addGeometry(Part.Circle(V(22.225, -9.779, 0), V(0, 0, 1), 1.7859), False)
sketch11.addGeometry(Part.Circle(V(32.004, 0, 0), V(0, 0, 1), 1.7859), False)
sketch11.addConstraint(Sketcher.Constraint("Equal", 0, 1))
sketch11.addConstraint(Sketcher.Constraint("Equal", 1, 2))
sketch11.addConstraint(Sketcher.Constraint("Equal", 2, 3))
sketch11.addConstraint(Sketcher.Constraint("Equal", 3, 4))
sketch11.addConstraint(Sketcher.Constraint("Equal", 4, 5))
sketch11.addConstraint(Sketcher.Constraint("Equal", 5, 6))
sketch11.addConstraint(Sketcher.Constraint("Equal", 6, 7))
sketch11.addConstraint(Sketcher.Constraint("Symmetric", 1, 3, 2, 3, -1))
sketch11.addConstraint(Sketcher.Constraint("Symmetric", 5, 3, 6, 3, -1))
sketch11.addConstraint(Sketcher.Constraint("PointOnObject", 0, 3, -1))
sketch11.addConstraint(Sketcher.Constraint("PointOnObject", 3, 3, -1))
sketch11.addConstraint(Sketcher.Constraint("PointOnObject", 4, 3, -1))
sketch11.addConstraint(Sketcher.Constraint("PointOnObject", 7, 3, -1))
sketch11.addConstraint(Sketcher.Constraint("Horizontal", 1, 3, 5, 3))
sketch11.addConstraint(Sketcher.Constraint("Diameter", 0, Q("0.140622 in")))
sketch11.addConstraint(Sketcher.Constraint("DistanceX", -1, 1, 4, 3, Q("0.49 in")))
sketch11.addConstraint(Sketcher.Constraint("DistanceX", -1, 1, 7, 3, Q("1.26 in")))
sketch11.addConstraint(Sketcher.Constraint("DistanceY", 2, 3, 1, 3, Q("0.77 in")))
sketch11.addConstraint(Sketcher.Constraint("DistanceX", 3, 3, 0, 3, Q("0.77 in")))
sketch11.addConstraint(Sketcher.Constraint("DistanceX", 0, 3, -1, 1, Q("0.206 in")))
sketch11.addConstraint(Sketcher.Constraint("DistanceX", 1, 3, -1, 1, Q("0.591 in")))
sketch11.addConstraint(Sketcher.Constraint("DistanceX", -1, 1, 5, 3, Q("0.875 in")))
pocket6 = body.newObject("PartDesign::Pocket", "Pocket005")
pocket6.Profile = sketch11
pocket6.Length = Q("0.1 in")
pocket6.Reversed = True

# Sketch on XZ plane
sketch12 = body.newObject("Sketcher::SketchObject", "Sketch011")
sketch12.AttachmentSupport = (doc.getObject("XZ_Plane"), [""])
sketch12.MapMode = "FlatFace"
sketch12.AttachmentOffset = App.Placement(V(0, 0, -1.875 * 25.4), App.Rotation())
sketch12.addGeometry(Part.LineSegment(V(69.4264, -76.2, 0), V(69.215, -76.2, 0)), False)
sketch12.addGeometry(Part.LineSegment(V(69.215, -76.2, 0), V(69.215, 83.3557, 0)), False)
sketch12.addGeometry(Part.LineSegment(V(69.215, 83.3557, 0), V(69.4264, 83.3557, 0)), False)
sketch12.addGeometry(Part.LineSegment(V(69.4264, 83.3557, 0), V(69.4264, -76.2, 0)), False)
sketch12.addConstraint(Sketcher.Constraint("Coincident", 0, 2, 1, 1))
sketch12.addConstraint(Sketcher.Constraint("Coincident", 1, 2, 2, 1))
sketch12.addConstraint(Sketcher.Constraint("Coincident", 2, 2, 3, 1))
sketch12.addConstraint(Sketcher.Constraint("Coincident", 3, 2, 0, 1))
sketch12.addConstraint(Sketcher.Constraint("Horizontal", 0))
sketch12.addConstraint(Sketcher.Constraint("Vertical", 1))
sketch12.addConstraint(Sketcher.Constraint("Horizontal", 2))
sketch12.addConstraint(Sketcher.Constraint("Vertical", 3))
sketch12.addConstraint(Sketcher.Constraint("DistanceY", 0, 2, -1, 1, Q("3 in")))
sketch12.addConstraint(Sketcher.Constraint("DistanceX", -1, 1, 0, 2, Q("2.725 in")))
sketch12.addConstraint(Sketcher.Constraint("DistanceX", 0, 2, 0, 1, 0.2114))
sketch12.addConstraint(Sketcher.Constraint("DistanceY", 1, 1, 1, 2, 159.5557))
pocket7 = body.newObject("PartDesign::Pocket", "Pocket006")
pocket7.Profile = sketch12
pocket7.Length = Q("6 in")
pocket7.Reversed = True

# Sketch on XZ plane
sketch13 = body.newObject("Sketcher::SketchObject", "Sketch012")
sketch13.AttachmentSupport = (doc.getObject("XZ_Plane"), [""])
sketch13.MapMode = "FlatFace"
sketch13.AttachmentOffset = App.Placement(V(0, 0, -1.875 * 25.4), App.Rotation())
sketch13.addGeometry(Part.LineSegment(V(-56.515, -82.55, 0), V(-56.515, 82.55, 0)), False)
sketch13.addGeometry(Part.LineSegment(V(-56.515, 82.55, 0), V(-12.065, 82.55, 0)), False)
sketch13.addGeometry(Part.LineSegment(V(-12.065, 82.55, 0), V(-12.065, -82.55, 0)), False)
sketch13.addGeometry(Part.LineSegment(V(-12.065, -82.55, 0), V(-56.515, -82.55, 0)), False)
sketch13.addConstraint(Sketcher.Constraint("Coincident", 0, 2, 1, 1))
sketch13.addConstraint(Sketcher.Constraint("Coincident", 1, 2, 2, 1))
sketch13.addConstraint(Sketcher.Constraint("Coincident", 2, 2, 3, 1))
sketch13.addConstraint(Sketcher.Constraint("Coincident", 3, 2, 0, 1))
sketch13.addConstraint(Sketcher.Constraint("Vertical", 0))
sketch13.addConstraint(Sketcher.Constraint("Horizontal", 1))
sketch13.addConstraint(Sketcher.Constraint("Vertical", 2))
sketch13.addConstraint(Sketcher.Constraint("Horizontal", 3))
sketch13.addConstraint(Sketcher.Constraint("DistanceX", 1, 1, 1, 2, Q("1.75 in")))
sketch13.addConstraint(Sketcher.Constraint("DistanceY", 0, 1, 0, 2, Q("6.5 in")))
sketch13.addConstraint(Sketcher.Constraint("DistanceY", -1, 1, 0, 2, Q("3.25 in")))
sketch13.addConstraint(Sketcher.Constraint("DistanceX", 0, 2, -1, 1, Q("2.225 in")))
pad6 = body.newObject("PartDesign::Pad", "Pad005")
pad6.Profile = sketch13
pad6.Length = Q("0.1 in")

# Sketch on XY plane
sketch14 = body.newObject("Sketcher::SketchObject", "Sketch013")
sketch14.AttachmentSupport = (doc.getObject("XY_Plane"), [""])
sketch14.MapMode = "FlatFace"
sketch14.AttachmentOffset = App.Placement(V(0, 0, -3.25 * 25.4), App.Rotation())
sketch14.addGeometry(Part.LineSegment(V(67.945, -47.625, 0), V(65.405, -47.625, 0)), False)
sketch14.addGeometry(Part.LineSegment(V(65.405, -47.625, 0), V(65.405, 47.625, 0)), False)
sketch14.addGeometry(Part.LineSegment(V(65.405, 47.625, 0), V(67.945, 47.625, 0)), False)
sketch14.addGeometry(Part.LineSegment(V(67.945, 47.625, 0), V(67.945, -47.625, 0)), False)
sketch14.addConstraint(Sketcher.Constraint("Coincident", 0, 2, 1, 1))
sketch14.addConstraint(Sketcher.Constraint("Coincident", 1, 2, 2, 1))
sketch14.addConstraint(Sketcher.Constraint("Coincident", 2, 2, 3, 1))
sketch14.addConstraint(Sketcher.Constraint("Coincident", 3, 2, 0, 1))
sketch14.addConstraint(Sketcher.Constraint("Horizontal", 0))
sketch14.addConstraint(Sketcher.Constraint("Vertical", 1))
sketch14.addConstraint(Sketcher.Constraint("Horizontal", 2))
sketch14.addConstraint(Sketcher.Constraint("Vertical", 3))
sketch14.addConstraint(Sketcher.Constraint("DistanceX", 0, 2, 0, 1, Q("0.1 in")))
sketch14.addConstraint(Sketcher.Constraint("DistanceY", 1, 1, 1, 2, Q("3.75 in")))
sketch14.addConstraint(Sketcher.Constraint("DistanceX", -1, 1, 0, 2, Q("2.575 in")))
sketch14.addConstraint(Sketcher.Constraint("DistanceY", 0, 2, -1, 1, Q("1.875 in")))
pad7 = body.newObject("PartDesign::Pad", "Pad006")
pad7.Profile = sketch14
pad7.Length = Q("6.5 in")

# Sketch on XY plane
sketch15 = body.newObject("Sketcher::SketchObject", "Sketch014")
sketch15.AttachmentSupport = (doc.getObject("XY_Plane"), [""])
sketch15.MapMode = "FlatFace"
sketch15.AttachmentOffset = App.Placement(V(0, 0, -3.25 * 25.4), App.Rotation())
sketch15.addGeometry(Part.LineSegment(V(69.215, 47.625, 0), V(69.215, -47.625, 0)), False)
sketch15.addGeometry(Part.LineSegment(V(69.215, -47.625, 0), V(67.945, -47.625, 0)), False)
sketch15.addGeometry(Part.LineSegment(V(67.945, -47.625, 0), V(67.945, 47.625, 0)), False)
sketch15.addGeometry(Part.LineSegment(V(67.945, 47.625, 0), V(69.215, 47.625, 0)), False)
sketch15.addConstraint(Sketcher.Constraint("Coincident", 0, 2, 1, 1))
sketch15.addConstraint(Sketcher.Constraint("Coincident", 1, 2, 2, 1))
sketch15.addConstraint(Sketcher.Constraint("Coincident", 2, 2, 3, 1))
sketch15.addConstraint(Sketcher.Constraint("Coincident", 3, 2, 0, 1))
sketch15.addConstraint(Sketcher.Constraint("Vertical", 0))
sketch15.addConstraint(Sketcher.Constraint("Horizontal", 1))
sketch15.addConstraint(Sketcher.Constraint("Vertical", 2))
sketch15.addConstraint(Sketcher.Constraint("Horizontal", 3))
sketch15.addConstraint(Sketcher.Constraint("DistanceX", 1, 2, 1, 1, Q("0.05 in")))
sketch15.addConstraint(Sketcher.Constraint("DistanceY", 0, 2, 0, 1, Q("3.75 in")))
sketch15.addConstraint(Sketcher.Constraint("DistanceX", -1, 1, 0, 2, Q("2.725 in")))
sketch15.addConstraint(Sketcher.Constraint("DistanceY", 0, 2, -1, 1, Q("1.875 in")))
pocket8 = body.newObject("PartDesign::Pocket", "Pocket007")
pocket8.Profile = sketch15
pocket8.Length = Q("6.5 in")
pocket8.Reversed = True

# Sketch on YZ plane
sketch16 = body.newObject("Sketcher::SketchObject", "Sketch015")
sketch16.AttachmentSupport = (doc.getObject("YZ_Plane"), [""])
sketch16.MapMode = "FlatFace"
sketch16.AttachmentOffset = App.Placement(V(0, 0, 2.225 * 25.4), App.Rotation())
sketch16.addGeometry(Part.LineSegment(V(47.625, -82.55, 0), V(45.0748, -82.55, 0)), False)
sketch16.addGeometry(Part.LineSegment(V(45.0748, -82.55, 0), V(45.0748, 82.55, 0)), False)
sketch16.addGeometry(Part.LineSegment(V(45.0748, 82.55, 0), V(47.625, 82.55, 0)), False)
sketch16.addGeometry(Part.LineSegment(V(47.625, 82.55, 0), V(47.625, -82.55, 0)), False)
sketch16.addConstraint(Sketcher.Constraint("Coincident", 0, 2, 1, 1))
sketch16.addConstraint(Sketcher.Constraint("Coincident", 1, 2, 2, 1))
sketch16.addConstraint(Sketcher.Constraint("Coincident", 2, 2, 3, 1))
sketch16.addConstraint(Sketcher.Constraint("Coincident", 3, 2, 0, 1))
sketch16.addConstraint(Sketcher.Constraint("Horizontal", 0))
sketch16.addConstraint(Sketcher.Constraint("Vertical", 1))
sketch16.addConstraint(Sketcher.Constraint("Horizontal", 2))
sketch16.addConstraint(Sketcher.Constraint("Vertical", 3))
sketch16.addConstraint(Sketcher.Constraint("DistanceY", 1, 1, 1, 2, Q("6.5 in")))
sketch16.addConstraint(Sketcher.Constraint("DistanceY", 0, 2, -1, 1, Q("3.25 in")))
sketch16.addConstraint(Sketcher.Constraint("DistanceX", 0, 2, 0, 1, Q("0.1004 in")))
sketch16.addConstraint(Sketcher.Constraint("DistanceX", -1, 1, 2, 2, Q("1.875 in")))
pad8 = body.newObject("PartDesign::Pad", "Pad007")
pad8.Profile = sketch16
pad8.Length = Q("0.05 in")
pad8.Reversed = True

doc.recompute()
